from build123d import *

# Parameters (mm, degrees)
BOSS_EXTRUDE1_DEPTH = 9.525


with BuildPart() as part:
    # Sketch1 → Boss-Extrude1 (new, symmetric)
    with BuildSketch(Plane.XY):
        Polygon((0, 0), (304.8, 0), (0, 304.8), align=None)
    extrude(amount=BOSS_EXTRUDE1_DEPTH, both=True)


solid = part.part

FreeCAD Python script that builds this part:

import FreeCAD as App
import Part
import Sketcher
Q = App.Units.Quantity

doc = App.newDocument("Part")
body = doc.addObject("PartDesign::Body", "Body")

sketch1 = body.newObject("Sketcher::SketchObject", "Sketch")
sketch1.AttachmentSupport = (doc.getObject("XY_Plane"), [""])
sketch1.MapMode = "FlatFace"
sketch1.addGeometry(Part.LineSegment(App.Vector(0, 0, 0), App.Vector(305, 0, 0)), False)
sketch1.addGeometry(Part.LineSegment(App.Vector(305, 0, 0), App.Vector(0, 305, 0)), False)
sketch1.addGeometry(Part.LineSegment(App.Vector(0, 305, 0), App.Vector(0, 0, 0)), False)
sketch1.addConstraint(Sketcher.Constraint("Coincident", 0, 2, 1, 1))
sketch1.addConstraint(Sketcher.Constraint("Coincident", 1, 2, 2, 1))
sketch1.addConstraint(Sketcher.Constraint("Coincident", 2, 2, 0, 1))
sketch1.addConstraint(Sketcher.Constraint("Horizontal", 0))
sketch1.addConstraint(Sketcher.Constraint("Vertical", 2))
sketch1.addConstraint(Sketcher.Constraint("Coincident", 2, 2, -1, 1))
sketch1.addConstraint(Sketcher.Constraint("Equal", 0, 2))
sketch1.addConstraint(Sketcher.Constraint("DistanceX", 0, 1, 0, 2, Q("12 in")))
pad1 = body.newObject("PartDesign::Pad", "Pad")
pad1.Profile = sketch1
pad1.Length = Q("0.75 in")
pad1.Midplane = True

doc.recompute()
